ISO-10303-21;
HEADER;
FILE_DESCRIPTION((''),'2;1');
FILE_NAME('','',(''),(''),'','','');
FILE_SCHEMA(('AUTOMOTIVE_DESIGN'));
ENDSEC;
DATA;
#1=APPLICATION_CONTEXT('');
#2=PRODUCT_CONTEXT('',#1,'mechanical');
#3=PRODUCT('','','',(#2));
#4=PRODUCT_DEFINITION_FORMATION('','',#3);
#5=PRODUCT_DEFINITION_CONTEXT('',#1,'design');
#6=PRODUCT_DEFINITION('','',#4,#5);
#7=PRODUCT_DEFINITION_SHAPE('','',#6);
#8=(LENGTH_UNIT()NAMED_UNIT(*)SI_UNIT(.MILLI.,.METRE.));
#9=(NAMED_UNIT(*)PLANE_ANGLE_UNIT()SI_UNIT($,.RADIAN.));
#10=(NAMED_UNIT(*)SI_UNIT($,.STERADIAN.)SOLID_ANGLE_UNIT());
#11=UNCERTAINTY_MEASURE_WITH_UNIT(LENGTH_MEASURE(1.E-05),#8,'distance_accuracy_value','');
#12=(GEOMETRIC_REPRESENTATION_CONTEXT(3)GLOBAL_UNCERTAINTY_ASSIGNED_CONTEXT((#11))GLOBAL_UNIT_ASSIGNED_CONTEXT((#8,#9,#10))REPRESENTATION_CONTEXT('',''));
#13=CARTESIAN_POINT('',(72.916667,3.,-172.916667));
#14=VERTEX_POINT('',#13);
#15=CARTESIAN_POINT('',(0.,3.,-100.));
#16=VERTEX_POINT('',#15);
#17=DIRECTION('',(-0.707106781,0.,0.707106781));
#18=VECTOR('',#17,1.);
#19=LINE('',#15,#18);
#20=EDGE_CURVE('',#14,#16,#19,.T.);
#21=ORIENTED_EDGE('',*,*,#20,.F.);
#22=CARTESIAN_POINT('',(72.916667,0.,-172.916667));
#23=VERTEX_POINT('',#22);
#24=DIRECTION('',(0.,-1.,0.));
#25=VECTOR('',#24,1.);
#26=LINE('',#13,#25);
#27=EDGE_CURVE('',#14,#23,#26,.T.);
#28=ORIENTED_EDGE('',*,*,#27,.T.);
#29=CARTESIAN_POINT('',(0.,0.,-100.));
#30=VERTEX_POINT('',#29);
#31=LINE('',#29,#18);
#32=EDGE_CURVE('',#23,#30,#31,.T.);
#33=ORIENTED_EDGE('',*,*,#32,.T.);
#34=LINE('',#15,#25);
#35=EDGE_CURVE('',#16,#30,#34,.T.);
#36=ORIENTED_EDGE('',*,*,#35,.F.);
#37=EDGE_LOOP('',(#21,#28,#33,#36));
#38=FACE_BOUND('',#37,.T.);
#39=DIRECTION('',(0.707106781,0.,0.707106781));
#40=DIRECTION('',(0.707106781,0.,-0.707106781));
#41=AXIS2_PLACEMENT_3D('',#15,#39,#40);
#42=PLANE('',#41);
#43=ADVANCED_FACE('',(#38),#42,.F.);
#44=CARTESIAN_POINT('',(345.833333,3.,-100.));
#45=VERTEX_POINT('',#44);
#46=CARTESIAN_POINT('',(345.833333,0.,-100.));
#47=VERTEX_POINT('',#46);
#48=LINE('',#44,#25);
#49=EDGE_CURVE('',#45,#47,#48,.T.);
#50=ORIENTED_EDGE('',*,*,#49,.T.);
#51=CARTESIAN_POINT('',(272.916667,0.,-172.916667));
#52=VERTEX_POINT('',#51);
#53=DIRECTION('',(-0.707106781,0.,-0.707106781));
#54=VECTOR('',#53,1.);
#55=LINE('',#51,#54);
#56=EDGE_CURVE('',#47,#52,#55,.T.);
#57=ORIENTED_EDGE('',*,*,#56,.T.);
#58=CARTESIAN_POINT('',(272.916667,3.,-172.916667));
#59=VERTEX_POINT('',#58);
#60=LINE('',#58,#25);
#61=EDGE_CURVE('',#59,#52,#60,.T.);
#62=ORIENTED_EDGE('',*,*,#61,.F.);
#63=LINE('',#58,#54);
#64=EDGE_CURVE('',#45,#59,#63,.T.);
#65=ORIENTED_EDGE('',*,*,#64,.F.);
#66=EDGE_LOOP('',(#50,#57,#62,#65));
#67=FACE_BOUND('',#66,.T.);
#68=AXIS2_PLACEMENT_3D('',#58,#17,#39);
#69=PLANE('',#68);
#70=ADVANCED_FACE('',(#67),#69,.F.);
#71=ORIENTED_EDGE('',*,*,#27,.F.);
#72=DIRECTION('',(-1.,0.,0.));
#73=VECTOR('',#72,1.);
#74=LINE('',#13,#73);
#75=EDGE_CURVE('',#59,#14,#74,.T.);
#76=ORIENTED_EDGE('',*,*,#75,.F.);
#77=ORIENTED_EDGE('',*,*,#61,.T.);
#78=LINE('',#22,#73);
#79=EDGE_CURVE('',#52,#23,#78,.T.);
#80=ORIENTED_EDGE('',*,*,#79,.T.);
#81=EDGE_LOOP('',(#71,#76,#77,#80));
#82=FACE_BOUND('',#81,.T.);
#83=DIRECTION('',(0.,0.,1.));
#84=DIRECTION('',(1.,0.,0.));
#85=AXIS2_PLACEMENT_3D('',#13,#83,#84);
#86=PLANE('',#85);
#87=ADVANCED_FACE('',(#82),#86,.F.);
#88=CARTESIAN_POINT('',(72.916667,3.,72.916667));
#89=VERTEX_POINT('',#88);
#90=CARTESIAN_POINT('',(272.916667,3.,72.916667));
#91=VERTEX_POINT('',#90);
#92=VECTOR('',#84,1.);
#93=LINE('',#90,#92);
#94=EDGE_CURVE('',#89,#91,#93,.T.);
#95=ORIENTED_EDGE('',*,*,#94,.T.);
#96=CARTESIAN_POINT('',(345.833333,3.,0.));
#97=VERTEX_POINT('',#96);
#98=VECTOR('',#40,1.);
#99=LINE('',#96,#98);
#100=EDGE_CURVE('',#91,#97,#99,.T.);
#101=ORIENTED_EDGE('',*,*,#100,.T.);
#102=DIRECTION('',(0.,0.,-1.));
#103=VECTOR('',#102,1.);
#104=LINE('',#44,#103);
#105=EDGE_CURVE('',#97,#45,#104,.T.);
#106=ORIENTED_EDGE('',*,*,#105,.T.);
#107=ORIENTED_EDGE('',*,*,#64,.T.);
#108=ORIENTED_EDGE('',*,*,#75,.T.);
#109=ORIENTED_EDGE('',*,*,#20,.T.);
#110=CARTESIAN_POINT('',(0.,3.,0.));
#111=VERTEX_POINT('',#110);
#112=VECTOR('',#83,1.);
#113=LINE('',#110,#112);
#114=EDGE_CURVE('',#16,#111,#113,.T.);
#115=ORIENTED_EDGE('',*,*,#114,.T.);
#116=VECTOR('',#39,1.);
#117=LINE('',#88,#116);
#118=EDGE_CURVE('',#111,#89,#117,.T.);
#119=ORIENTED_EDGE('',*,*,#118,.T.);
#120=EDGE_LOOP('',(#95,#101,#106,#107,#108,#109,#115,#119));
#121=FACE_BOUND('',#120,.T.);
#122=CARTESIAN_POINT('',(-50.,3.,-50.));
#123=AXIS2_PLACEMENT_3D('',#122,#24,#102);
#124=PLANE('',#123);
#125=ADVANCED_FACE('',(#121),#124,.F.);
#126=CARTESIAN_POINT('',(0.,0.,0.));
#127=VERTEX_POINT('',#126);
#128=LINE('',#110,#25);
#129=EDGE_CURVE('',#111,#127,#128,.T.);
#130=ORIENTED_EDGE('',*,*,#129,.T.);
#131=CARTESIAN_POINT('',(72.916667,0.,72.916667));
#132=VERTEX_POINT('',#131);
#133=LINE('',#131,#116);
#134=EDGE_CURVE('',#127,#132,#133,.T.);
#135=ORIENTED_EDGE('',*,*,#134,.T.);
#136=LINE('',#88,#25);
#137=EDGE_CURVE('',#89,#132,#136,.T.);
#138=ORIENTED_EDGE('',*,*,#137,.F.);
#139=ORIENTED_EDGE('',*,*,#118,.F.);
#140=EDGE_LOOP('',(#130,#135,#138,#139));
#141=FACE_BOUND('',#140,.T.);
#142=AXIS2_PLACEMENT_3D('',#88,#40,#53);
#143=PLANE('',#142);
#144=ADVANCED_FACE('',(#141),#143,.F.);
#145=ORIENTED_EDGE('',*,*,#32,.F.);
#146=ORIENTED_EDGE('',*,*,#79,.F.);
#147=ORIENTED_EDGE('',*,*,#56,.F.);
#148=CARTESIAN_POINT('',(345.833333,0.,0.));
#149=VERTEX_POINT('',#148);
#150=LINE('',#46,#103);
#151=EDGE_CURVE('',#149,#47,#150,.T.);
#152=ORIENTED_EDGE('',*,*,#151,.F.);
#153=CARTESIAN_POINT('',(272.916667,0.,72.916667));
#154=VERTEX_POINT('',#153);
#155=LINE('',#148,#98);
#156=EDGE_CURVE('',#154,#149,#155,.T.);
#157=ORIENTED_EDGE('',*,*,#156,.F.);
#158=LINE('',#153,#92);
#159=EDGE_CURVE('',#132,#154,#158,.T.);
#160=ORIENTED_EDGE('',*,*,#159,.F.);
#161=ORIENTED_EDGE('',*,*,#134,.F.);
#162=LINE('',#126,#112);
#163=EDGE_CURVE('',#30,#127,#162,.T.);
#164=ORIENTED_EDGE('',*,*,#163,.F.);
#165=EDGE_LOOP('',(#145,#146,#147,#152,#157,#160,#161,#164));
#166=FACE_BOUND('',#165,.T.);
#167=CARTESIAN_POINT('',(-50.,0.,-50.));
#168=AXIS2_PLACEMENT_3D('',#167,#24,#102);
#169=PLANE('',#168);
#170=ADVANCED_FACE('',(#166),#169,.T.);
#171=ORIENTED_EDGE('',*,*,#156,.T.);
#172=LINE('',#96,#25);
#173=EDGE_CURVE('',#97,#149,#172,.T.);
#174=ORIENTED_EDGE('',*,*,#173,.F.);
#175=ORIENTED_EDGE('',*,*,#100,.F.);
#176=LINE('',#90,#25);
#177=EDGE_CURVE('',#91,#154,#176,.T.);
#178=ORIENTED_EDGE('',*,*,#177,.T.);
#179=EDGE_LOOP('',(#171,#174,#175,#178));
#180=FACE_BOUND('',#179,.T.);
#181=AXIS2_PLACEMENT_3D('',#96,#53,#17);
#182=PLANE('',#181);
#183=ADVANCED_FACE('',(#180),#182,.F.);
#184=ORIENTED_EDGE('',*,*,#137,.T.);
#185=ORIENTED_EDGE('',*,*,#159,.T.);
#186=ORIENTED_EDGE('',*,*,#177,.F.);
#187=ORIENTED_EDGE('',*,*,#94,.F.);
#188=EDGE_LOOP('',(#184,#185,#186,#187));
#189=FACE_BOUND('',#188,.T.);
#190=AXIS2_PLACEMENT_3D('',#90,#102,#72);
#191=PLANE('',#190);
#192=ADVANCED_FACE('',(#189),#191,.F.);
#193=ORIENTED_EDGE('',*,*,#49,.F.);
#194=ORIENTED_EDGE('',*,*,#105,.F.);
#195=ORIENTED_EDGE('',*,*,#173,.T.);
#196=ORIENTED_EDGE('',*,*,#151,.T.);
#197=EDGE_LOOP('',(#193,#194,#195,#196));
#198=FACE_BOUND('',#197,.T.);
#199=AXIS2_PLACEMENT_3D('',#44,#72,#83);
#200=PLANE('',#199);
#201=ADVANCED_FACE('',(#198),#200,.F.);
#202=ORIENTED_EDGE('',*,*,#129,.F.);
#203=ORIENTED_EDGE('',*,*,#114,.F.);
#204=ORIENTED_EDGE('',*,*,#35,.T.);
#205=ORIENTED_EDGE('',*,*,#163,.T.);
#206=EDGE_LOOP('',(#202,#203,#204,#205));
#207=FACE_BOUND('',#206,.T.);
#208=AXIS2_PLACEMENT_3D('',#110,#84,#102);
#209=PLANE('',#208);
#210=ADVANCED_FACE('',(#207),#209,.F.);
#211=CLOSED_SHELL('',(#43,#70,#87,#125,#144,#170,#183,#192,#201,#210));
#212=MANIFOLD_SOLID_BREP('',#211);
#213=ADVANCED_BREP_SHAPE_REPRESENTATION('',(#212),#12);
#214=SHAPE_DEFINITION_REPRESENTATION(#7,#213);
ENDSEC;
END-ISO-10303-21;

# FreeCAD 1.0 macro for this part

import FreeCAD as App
import Part
import Sketcher

V = App.Vector


def add_polygon(sketch, points):
    """Adds a closed chain of lines whose ends are joined by coincident constraints."""
    first, n = sketch.GeometryCount, len(points)
    for a, b in zip(points, points[1:] + points[:1]):
        sketch.addGeometry(Part.LineSegment(App.Vector(*a, 0), App.Vector(*b, 0)), False)
    for i in range(n):
        sketch.addConstraint(Sketcher.Constraint("Coincident", first + i, 2, first + (i + 1) % n, 1))

doc = App.newDocument("Part")
body = doc.addObject("PartDesign::Body", "Body")

sketch1 = body.newObject("Sketcher::SketchObject", "Sketch")
sketch1.AttachmentSupport = (doc.getObject("XZ_Plane"), [""])
sketch1.MapMode = "FlatFace"
add_polygon(sketch1, [(0, -100), (0, 0), (73, 73), (273, 73), (346, 0), (346, -100), (273, -173), (73, -173)])
sketch1.addConstraint(Sketcher.Constraint("Vertical", 0))
sketch1.addConstraint(Sketcher.Constraint("Horizontal", 2))
sketch1.addConstraint(Sketcher.Constraint("Vertical", 4))
sketch1.addConstraint(Sketcher.Constraint("Horizontal", 6))
sketch1.addConstraint(Sketcher.Constraint("Coincident", 0, 2, -1, 1))
sketch1.addConstraint(Sketcher.Constraint("PointOnObject", 3, 2, -1))
sketch1.addConstraint(Sketcher.Constraint("Perpendicular", 1, 3))
sketch1.addConstraint(Sketcher.Constraint("Perpendicular", 3, 5))
sketch1.addConstraint(Sketcher.Constraint("Perpendicular", 5, 7))
sketch1.addConstraint(Sketcher.Constraint("Horizontal", 4, 2, 7, 2))
sketch1.addConstraint(Sketcher.Constraint("Vertical", 2, 2, 5, 2))
sketch1.addConstraint(Sketcher.Constraint("Vertical", 1, 2, 6, 2))
sketch1.addConstraint(Sketcher.Constraint("DistanceX", 2, 1, 2, 2, 200.0))
sketch1.addConstraint(Sketcher.Constraint("DistanceY", 0, 1, 0, 2, 100.0))
sketch1.addConstraint(Sketcher.Constraint("Distance", 1, 103.119739))
pad1 = body.newObject("PartDesign::Pad", "Pad")
pad1.Profile = sketch1
pad1.Length = 3
pad1.Reversed = True

doc.recompute()
